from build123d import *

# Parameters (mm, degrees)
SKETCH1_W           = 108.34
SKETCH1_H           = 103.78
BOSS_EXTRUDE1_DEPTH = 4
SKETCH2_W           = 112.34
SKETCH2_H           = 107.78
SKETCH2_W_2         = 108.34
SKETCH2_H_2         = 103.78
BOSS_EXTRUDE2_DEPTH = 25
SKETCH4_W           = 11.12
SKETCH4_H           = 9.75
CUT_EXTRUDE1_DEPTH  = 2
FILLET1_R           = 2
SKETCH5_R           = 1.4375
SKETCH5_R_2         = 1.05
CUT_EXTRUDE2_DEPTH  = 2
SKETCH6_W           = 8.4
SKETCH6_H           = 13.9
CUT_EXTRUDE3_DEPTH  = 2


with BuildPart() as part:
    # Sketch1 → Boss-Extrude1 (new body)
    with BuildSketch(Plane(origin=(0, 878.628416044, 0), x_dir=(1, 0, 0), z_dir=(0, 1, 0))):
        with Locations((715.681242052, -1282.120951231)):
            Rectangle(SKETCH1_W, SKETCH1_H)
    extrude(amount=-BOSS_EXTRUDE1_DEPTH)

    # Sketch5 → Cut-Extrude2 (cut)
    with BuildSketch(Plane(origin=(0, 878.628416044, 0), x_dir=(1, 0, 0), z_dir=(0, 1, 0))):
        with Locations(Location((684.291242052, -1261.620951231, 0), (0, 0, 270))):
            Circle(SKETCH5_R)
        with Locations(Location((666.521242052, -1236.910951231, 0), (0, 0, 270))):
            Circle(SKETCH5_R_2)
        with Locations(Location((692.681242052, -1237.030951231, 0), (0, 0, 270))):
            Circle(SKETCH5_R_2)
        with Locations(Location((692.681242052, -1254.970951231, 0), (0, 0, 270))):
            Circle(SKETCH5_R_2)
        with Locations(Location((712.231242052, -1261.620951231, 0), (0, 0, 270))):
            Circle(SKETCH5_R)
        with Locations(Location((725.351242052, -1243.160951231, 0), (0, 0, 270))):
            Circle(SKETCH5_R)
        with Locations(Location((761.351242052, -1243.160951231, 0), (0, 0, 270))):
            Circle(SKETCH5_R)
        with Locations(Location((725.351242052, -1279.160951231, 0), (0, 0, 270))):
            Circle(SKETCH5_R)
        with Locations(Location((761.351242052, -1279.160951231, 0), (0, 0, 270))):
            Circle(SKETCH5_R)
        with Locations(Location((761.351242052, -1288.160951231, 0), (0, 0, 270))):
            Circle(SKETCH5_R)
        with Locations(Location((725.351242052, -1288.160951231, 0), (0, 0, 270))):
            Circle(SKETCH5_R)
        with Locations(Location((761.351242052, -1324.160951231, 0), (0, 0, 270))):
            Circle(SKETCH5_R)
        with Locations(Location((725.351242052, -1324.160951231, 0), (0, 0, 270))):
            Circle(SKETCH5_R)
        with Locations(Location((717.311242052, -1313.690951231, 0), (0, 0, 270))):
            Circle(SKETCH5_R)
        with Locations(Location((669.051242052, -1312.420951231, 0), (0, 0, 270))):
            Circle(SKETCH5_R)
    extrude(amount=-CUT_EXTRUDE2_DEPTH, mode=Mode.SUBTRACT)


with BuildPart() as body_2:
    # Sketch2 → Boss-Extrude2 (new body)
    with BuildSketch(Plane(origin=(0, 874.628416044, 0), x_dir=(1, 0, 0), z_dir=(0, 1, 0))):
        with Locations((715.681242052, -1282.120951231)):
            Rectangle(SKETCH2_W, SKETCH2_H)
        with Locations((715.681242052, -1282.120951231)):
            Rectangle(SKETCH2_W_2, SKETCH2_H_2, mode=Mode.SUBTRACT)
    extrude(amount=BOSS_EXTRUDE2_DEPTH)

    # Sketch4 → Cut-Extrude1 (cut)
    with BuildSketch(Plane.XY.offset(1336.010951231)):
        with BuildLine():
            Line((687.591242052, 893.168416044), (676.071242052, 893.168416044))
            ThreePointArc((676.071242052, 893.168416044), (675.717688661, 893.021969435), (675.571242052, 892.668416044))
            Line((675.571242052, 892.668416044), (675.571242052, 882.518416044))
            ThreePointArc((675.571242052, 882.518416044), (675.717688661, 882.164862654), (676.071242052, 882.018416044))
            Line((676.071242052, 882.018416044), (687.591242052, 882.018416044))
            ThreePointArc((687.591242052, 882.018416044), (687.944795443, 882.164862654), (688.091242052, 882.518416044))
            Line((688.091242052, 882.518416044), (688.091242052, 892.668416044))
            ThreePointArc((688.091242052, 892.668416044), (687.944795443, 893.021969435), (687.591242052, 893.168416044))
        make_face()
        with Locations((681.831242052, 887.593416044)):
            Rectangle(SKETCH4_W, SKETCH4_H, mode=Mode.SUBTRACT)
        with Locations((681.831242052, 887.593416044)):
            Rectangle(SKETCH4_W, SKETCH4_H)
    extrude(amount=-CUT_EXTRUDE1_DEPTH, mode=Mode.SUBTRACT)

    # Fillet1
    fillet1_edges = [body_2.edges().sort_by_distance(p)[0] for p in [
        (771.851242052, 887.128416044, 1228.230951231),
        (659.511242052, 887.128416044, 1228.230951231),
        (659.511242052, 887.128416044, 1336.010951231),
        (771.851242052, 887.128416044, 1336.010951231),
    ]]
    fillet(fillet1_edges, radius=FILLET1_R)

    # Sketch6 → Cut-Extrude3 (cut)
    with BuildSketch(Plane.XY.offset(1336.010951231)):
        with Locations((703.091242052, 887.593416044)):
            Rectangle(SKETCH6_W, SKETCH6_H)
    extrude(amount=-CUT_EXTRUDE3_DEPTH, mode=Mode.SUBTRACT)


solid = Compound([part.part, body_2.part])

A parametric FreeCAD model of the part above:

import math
import FreeCAD as App
import Part
import Sketcher
from FreeCAD import Vector


def edges_at(feature, points):
    """Names of the edges that pass closest to the given points."""
    edges = feature.Shape.Edges
    near = lambda p: min(range(len(edges)), key=lambda i: edges[i].distToShape(Part.Vertex(*p))[0])
    return sorted({f"Edge{near(p) + 1}" for p in points})

doc = App.newDocument("Part")
params = doc.addObject("Spreadsheet::Sheet", "Params")
for row, (alias, value) in enumerate([
    ("sketch1_width", "108.34 mm"),
    ("sketch1_height", "103.78 mm"),
    ("pad1_length", "4 mm"),
    ("sketch2_diameter", "2.1 mm"),
    ("pocket1_length", "2 mm"),
    ("sketch3_width", "112.34 mm"),
    ("sketch3_height", "107.78 mm"),
    ("pad2_length", "25 mm"),
    ("sketch4_radius", "0.5 mm"),
    ("sketch4_width", "11.52 mm"),
    ("sketch4_height", "10.15 mm"),
    ("pocket2_length", "2 mm"),
    ("fillet_radius", "2 mm"),
    ("sketch5_width", "8.4 mm"),
    ("sketch5_height", "13.9 mm"),
    ("pocket3_length", "2 mm"),
], start=1):
    params.set(f"A{row}", alias)
    params.set(f"B{row}", "=" + value)
    params.setAlias(f"B{row}", alias)

body = doc.addObject("PartDesign::Body", "Body")

sketch1 = body.newObject("Sketcher::SketchObject", "Sketch")
sketch1.AttachmentSupport = (doc.getObject("XZ_Plane"), [""])
sketch1.MapMode = "FlatFace"
sketch1.AttachmentOffset = App.Placement(Vector(0, 0, -878.628416), App.Rotation())
sketch1.addGeometry([
    Part.LineSegment(Vector(662, 1230, 0), Vector(662, 1334, 0)),
    Part.LineSegment(Vector(662, 1334, 0), Vector(770, 1334, 0)),
    Part.LineSegment(Vector(770, 1334, 0), Vector(770, 1230, 0)),
    Part.LineSegment(Vector(770, 1230, 0), Vector(662, 1230, 0)),
], False)
sketch1.addConstraint([
    Sketcher.Constraint("Coincident", 0, 2, 1, 1),
    Sketcher.Constraint("Coincident", 1, 2, 2, 1),
    Sketcher.Constraint("Coincident", 2, 2, 3, 1),
    Sketcher.Constraint("Coincident", 3, 2, 0, 1),
    Sketcher.Constraint("Vertical", 0),
    Sketcher.Constraint("Horizontal", 1),
    Sketcher.Constraint("Vertical", 2),
    Sketcher.Constraint("Horizontal", 3),
    Sketcher.Constraint("DistanceX", 1, 1, 1, 2, 108.34),
    Sketcher.Constraint("DistanceY", 0, 1, 0, 2, 103.78),
    Sketcher.Constraint("DistanceY", -1, 1, 0, 2, 1334.010951),
    Sketcher.Constraint("DistanceX", -1, 1, 0, 2, 661.511242),
])
sketch1.setExpression("Constraints[8]", "Params.sketch1_width")
sketch1.setExpression("Constraints[9]", "Params.sketch1_height")
pad1 = body.newObject("PartDesign::Pad", "Pad")
pad1.Profile = sketch1
pad1.setExpression("Length", "Params.pad1_length")

sketch2 = body.newObject("Sketcher::SketchObject", "Sketch001")
sketch2.AttachmentSupport = (doc.getObject("XZ_Plane"), [""])
sketch2.MapMode = "FlatFace"
sketch2.AttachmentOffset = App.Placement(Vector(0, 0, -878.628416), App.Rotation())
sketch2.addGeometry([
    Part.Circle(Vector(684.3, 1261.6, 0), Vector(0, 0, 1), 1.4),
    Part.Circle(Vector(666.5, 1236.9, 0), Vector(0, 0, 1), 1.1),
    Part.Circle(Vector(692.7, 1237, 0), Vector(0, 0, 1), 1.1),
    Part.Circle(Vector(692.7, 1255, 0), Vector(0, 0, 1), 1.1),
    Part.Circle(Vector(712.2, 1261.6, 0), Vector(0, 0, 1), 1.4),
    Part.Circle(Vector(725.4, 1243.2, 0), Vector(0, 0, 1), 1.4),
    Part.Circle(Vector(761.4, 1243.2, 0), Vector(0, 0, 1), 1.4),
    Part.Circle(Vector(725.4, 1279.2, 0), Vector(0, 0, 1), 1.4),
    Part.Circle(Vector(761.4, 1279.2, 0), Vector(0, 0, 1), 1.4),
    Part.Circle(Vector(761.4, 1288.2, 0), Vector(0, 0, 1), 1.4),
    Part.Circle(Vector(725.4, 1288.2, 0), Vector(0, 0, 1), 1.4),
    Part.Circle(Vector(761.4, 1324.2, 0), Vector(0, 0, 1), 1.4),
    Part.Circle(Vector(725.4, 1324.2, 0), Vector(0, 0, 1), 1.4),
    Part.Circle(Vector(717.3, 1313.7, 0), Vector(0, 0, 1), 1.4),
    Part.Circle(Vector(669.1, 1312.4, 0), Vector(0, 0, 1), 1.4),
], False)
sketch2.addConstraint([
    Sketcher.Constraint("Equal", 1, 2),
    Sketcher.Constraint("Equal", 2, 3),
    Sketcher.Constraint("Equal", 0, 4),
    Sketcher.Constraint("Equal", 4, 5),
    Sketcher.Constraint("Equal", 5, 6),
    Sketcher.Constraint("Equal", 6, 7),
    Sketcher.Constraint("Equal", 7, 8),
    Sketcher.Constraint("Equal", 8, 9),
    Sketcher.Constraint("Equal", 9, 10),
    Sketcher.Constraint("Equal", 10, 11),
    Sketcher.Constraint("Equal", 11, 12),
    Sketcher.Constraint("Equal", 12, 13),
    Sketcher.Constraint("Equal", 13, 14),
    Sketcher.Constraint("Horizontal", 0, 3, 4, 3),
    Sketcher.Constraint("Horizontal", 5, 3, 6, 3),
    Sketcher.Constraint("Horizontal", 7, 3, 8, 3),
    Sketcher.Constraint("Horizontal", 9, 3, 10, 3),
    Sketcher.Constraint("Horizontal", 11, 3, 12, 3),
    Sketcher.Constraint("Vertical", 2, 3, 3, 3),
    Sketcher.Constraint("Vertical", 5, 3, 7, 3),
    Sketcher.Constraint("Vertical", 6, 3, 8, 3),
    Sketcher.Constraint("Vertical", 8, 3, 9, 3),
    Sketcher.Constraint("Vertical", 7, 3, 10, 3),
    Sketcher.Constraint("Vertical", 9, 3, 11, 3),
    Sketcher.Constraint("Vertical", 10, 3, 12, 3),
    Sketcher.Constraint("Diameter", 1, 2.1),
    Sketcher.Constraint("Diameter", 0, 2.875),
    Sketcher.Constraint("DistanceX", 5, 3, 6, 3, 36.0),
    Sketcher.Constraint("DistanceY", 5, 3, 7, 3, 36.0),
    Sketcher.Constraint("DistanceY", 8, 3, 9, 3, 9.0),
    Sketcher.Constraint("DistanceY", 9, 3, 11, 3, 36.0),
    Sketcher.Constraint("DistanceY", 0, 3, 14, 3, 50.8),
    Sketcher.Constraint("DistanceX", 14, 3, 12, 3, 56.3),
    Sketcher.Constraint("DistanceX", 1, 3, 0, 3, 17.77),
    Sketcher.Constraint("DistanceY", 1, 3, 0, 3, 24.71),
    Sketcher.Constraint("DistanceX", 0, 3, 2, 3, 8.39),
    Sketcher.Constraint("DistanceY", 2, 3, 0, 3, 24.59),
    Sketcher.Constraint("DistanceY", 3, 3, 0, 3, 6.65),
    Sketcher.Constraint("DistanceX", 3, 3, 4, 3, 19.55),
    Sketcher.Constraint("DistanceX", 4, 3, 5, 3, 13.12),
    Sketcher.Constraint("DistanceY", 5, 3, 4, 3, 18.46),
    Sketcher.Constraint("DistanceX", 13, 3, 12, 3, 8.04),
    Sketcher.Constraint("DistanceY", 13, 3, 12, 3, 10.47),
    Sketcher.Constraint("DistanceY", -1, 1, 0, 3, 1261.620951),
    Sketcher.Constraint("DistanceX", -1, 1, 0, 3, 684.291242),
])
sketch2.setExpression("Constraints[25]", "Params.sketch2_diameter")
pocket1 = body.newObject("PartDesign::Pocket", "Pocket")
pocket1.Profile = sketch2
pocket1.setExpression("Length", "Params.pocket1_length")
pocket1.Reversed = True
body2 = doc.addObject("PartDesign::Body", "Body001")

sketch3 = body2.newObject("Sketcher::SketchObject", "Sketch002")
sketch3.AttachmentSupport = (doc.getObject("XZ_Plane001"), [""])
sketch3.MapMode = "FlatFace"
sketch3.AttachmentOffset = App.Placement(Vector(0, 0, -874.628416), App.Rotation())
sketch3.addGeometry([
    Part.LineSegment(Vector(660, 1228, 0), Vector(660, 1336, 0)),
    Part.LineSegment(Vector(660, 1336, 0), Vector(772, 1336, 0)),
    Part.LineSegment(Vector(772, 1336, 0), Vector(772, 1228, 0)),
    Part.LineSegment(Vector(772, 1228, 0), Vector(660, 1228, 0)),
    Part.LineSegment(Vector(770, 1334, 0), Vector(662, 1334, 0)),
    Part.LineSegment(Vector(662, 1334, 0), Vector(662, 1230, 0)),
    Part.LineSegment(Vector(662, 1230, 0), Vector(770, 1230, 0)),
    Part.LineSegment(Vector(770, 1230, 0), Vector(770, 1334, 0)),
], False)
sketch3.addConstraint([
    Sketcher.Constraint("Coincident", 0, 2, 1, 1),
    Sketcher.Constraint("Coincident", 1, 2, 2, 1),
    Sketcher.Constraint("Coincident", 2, 2, 3, 1),
    Sketcher.Constraint("Coincident", 3, 2, 0, 1),
    Sketcher.Constraint("Coincident", 4, 2, 5, 1),
    Sketcher.Constraint("Coincident", 5, 2, 6, 1),
    Sketcher.Constraint("Coincident", 6, 2, 7, 1),
    Sketcher.Constraint("Coincident", 7, 2, 4, 1),
    Sketcher.Constraint("Vertical", 0),
    Sketcher.Constraint("Horizontal", 1),
    Sketcher.Constraint("Vertical", 2),
    Sketcher.Constraint("Horizontal", 3),
    Sketcher.Constraint("Horizontal", 4),
    Sketcher.Constraint("Vertical", 5),
    Sketcher.Constraint("Horizontal", 6),
    Sketcher.Constraint("Vertical", 7),
    Sketcher.Constraint("DistanceX", 0, 2, 4, 2, 2.0),
    Sketcher.Constraint("DistanceY", 4, 2, 0, 2, 2.0),
    Sketcher.Constraint("DistanceY", 3, 2, 5, 2, 2.0),
    Sketcher.Constraint("DistanceX", 6, 2, 2, 2, 2.0),
    Sketcher.Constraint("DistanceX", 1, 1, 1, 2, 112.34),
    Sketcher.Constraint("DistanceY", 0, 1, 0, 2, 107.78),
    Sketcher.Constraint("DistanceY", -1, 1, 0, 2, 1336.010951),
    Sketcher.Constraint("DistanceX", -1, 1, 0, 2, 659.511242),
])
sketch3.setExpression("Constraints[20]", "Params.sketch3_width")
sketch3.setExpression("Constraints[21]", "Params.sketch3_height")
pad2 = body2.newObject("PartDesign::Pad", "Pad001")
pad2.Profile = sketch3
pad2.setExpression("Length", "Params.pad2_length")
pad2.Reversed = True

sketch4 = body2.newObject("Sketcher::SketchObject", "Sketch003")
sketch4.AttachmentSupport = (doc.getObject("XY_Plane001"), [""])
sketch4.MapMode = "FlatFace"
sketch4.AttachmentOffset = App.Placement(Vector(0, 0, 1336.010951), App.Rotation())
sketch4.addGeometry([
    Part.LineSegment(Vector(687.59, 893.17, 0), Vector(676.07, 893.17, 0)),
    Part.ArcOfCircle(Part.Circle(Vector(676.07, 892.67, 0), Vector(0, 0, 1), 0.5), math.radians(90), math.radians(180)),
    Part.LineSegment(Vector(675.57, 892.67, 0), Vector(675.57, 882.52, 0)),
    Part.ArcOfCircle(Part.Circle(Vector(676.07, 882.52, 0), Vector(0, 0, 1), 0.5), math.radians(180), math.radians(270)),
    Part.LineSegment(Vector(676.07, 882.02, 0), Vector(687.59, 882.02, 0)),
    Part.ArcOfCircle(Part.Circle(Vector(687.59, 882.52, 0), Vector(0, 0, 1), 0.5), math.radians(-90), math.radians(0)),
    Part.LineSegment(Vector(688.09, 882.52, 0), Vector(688.09, 892.67, 0)),
    Part.ArcOfCircle(Part.Circle(Vector(687.59, 892.67, 0), Vector(0, 0, 1), 0.5), math.radians(0), math.radians(90)),
], False)
sketch4.addConstraint([
    Sketcher.Constraint("Tangent", 0, 2, 1, 1),
    Sketcher.Constraint("Tangent", 1, 2, 2, 1),
    Sketcher.Constraint("Tangent", 2, 2, 3, 1),
    Sketcher.Constraint("Tangent", 3, 2, 4, 1),
    Sketcher.Constraint("Tangent", 4, 2, 5, 1),
    Sketcher.Constraint("Tangent", 5, 2, 6, 1),
    Sketcher.Constraint("Tangent", 6, 2, 7, 1),
    Sketcher.Constraint("Tangent", 7, 2, 0, 1),
    Sketcher.Constraint("Horizontal", 0),
    Sketcher.Constraint("Vertical", 2),
    Sketcher.Constraint("Horizontal", 4),
    Sketcher.Constraint("Vertical", 6),
    Sketcher.Constraint("Equal", 1, 3),
    Sketcher.Constraint("Equal", 3, 5),
    Sketcher.Constraint("Equal", 5, 7),
    Sketcher.Constraint("Radius", 1, 0.5),
    Sketcher.Constraint("DistanceX", 0, 2, 0, 1, 11.52),
    Sketcher.Constraint("DistanceY", 2, 2, 2, 1, 10.15),
    Sketcher.Constraint("DistanceX", -1, 1, 1, 3, 676.071242),
    Sketcher.Constraint("DistanceY", -1, 1, 1, 3, 892.668416),
])
sketch4.setExpression("Constraints[15]", "Params.sketch4_radius")
sketch4.setExpression("Constraints[16]", "Params.sketch4_width")
sketch4.setExpression("Constraints[17]", "Params.sketch4_height")
pocket2 = body2.newObject("PartDesign::Pocket", "Pocket001")
pocket2.Profile = sketch4
pocket2.setExpression("Length", "Params.pocket2_length")
doc.recompute()

fillet = body2.newObject("PartDesign::Fillet", "Fillet")
fillet.Base = (pocket2, edges_at(pocket2, [
    (771.851, 887.128, 1228.231),
    (659.511, 887.128, 1228.231),
    (659.511, 887.128, 1336.011),
    (771.851, 887.128, 1336.011),
]))
fillet.setExpression("Radius", "Params.fillet_radius")

sketch5 = body2.newObject("Sketcher::SketchObject", "Sketch004")
sketch5.AttachmentSupport = (doc.getObject("XY_Plane001"), [""])
sketch5.MapMode = "FlatFace"
sketch5.AttachmentOffset = App.Placement(Vector(0, 0, 1336.010951), App.Rotation())
sketch5.addGeometry([
    Part.LineSegment(Vector(699, 895, 0), Vector(699, 881, 0)),
    Part.LineSegment(Vector(699, 881, 0), Vector(707, 881, 0)),
    Part.LineSegment(Vector(707, 881, 0), Vector(707, 895, 0)),
    Part.LineSegment(Vector(707, 895, 0), Vector(699, 895, 0)),
], False)
sketch5.addConstraint([
    Sketcher.Constraint("Coincident", 0, 2, 1, 1),
    Sketcher.Constraint("Coincident", 1, 2, 2, 1),
    Sketcher.Constraint("Coincident", 2, 2, 3, 1),
    Sketcher.Constraint("Coincident", 3, 2, 0, 1),
    Sketcher.Constraint("Vertical", 0),
    Sketcher.Constraint("Horizontal", 1),
    Sketcher.Constraint("Vertical", 2),
    Sketcher.Constraint("Horizontal", 3),
    Sketcher.Constraint("DistanceX", 1, 1, 1, 2, 8.4),
    Sketcher.Constraint("DistanceY", 0, 2, 0, 1, 13.9),
    Sketcher.Constraint("DistanceX", -1, 1, 0, 2, 698.891242),
    Sketcher.Constraint("DistanceY", -1, 1, 0, 2, 880.643416),
])
sketch5.setExpression("Constraints[8]", "Params.sketch5_width")
sketch5.setExpression("Constraints[9]", "Params.sketch5_height")
pocket3 = body2.newObject("PartDesign::Pocket", "Pocket002")
pocket3.Profile = sketch5
pocket3.setExpression("Length", "Params.pocket3_length")

doc.recompute()
